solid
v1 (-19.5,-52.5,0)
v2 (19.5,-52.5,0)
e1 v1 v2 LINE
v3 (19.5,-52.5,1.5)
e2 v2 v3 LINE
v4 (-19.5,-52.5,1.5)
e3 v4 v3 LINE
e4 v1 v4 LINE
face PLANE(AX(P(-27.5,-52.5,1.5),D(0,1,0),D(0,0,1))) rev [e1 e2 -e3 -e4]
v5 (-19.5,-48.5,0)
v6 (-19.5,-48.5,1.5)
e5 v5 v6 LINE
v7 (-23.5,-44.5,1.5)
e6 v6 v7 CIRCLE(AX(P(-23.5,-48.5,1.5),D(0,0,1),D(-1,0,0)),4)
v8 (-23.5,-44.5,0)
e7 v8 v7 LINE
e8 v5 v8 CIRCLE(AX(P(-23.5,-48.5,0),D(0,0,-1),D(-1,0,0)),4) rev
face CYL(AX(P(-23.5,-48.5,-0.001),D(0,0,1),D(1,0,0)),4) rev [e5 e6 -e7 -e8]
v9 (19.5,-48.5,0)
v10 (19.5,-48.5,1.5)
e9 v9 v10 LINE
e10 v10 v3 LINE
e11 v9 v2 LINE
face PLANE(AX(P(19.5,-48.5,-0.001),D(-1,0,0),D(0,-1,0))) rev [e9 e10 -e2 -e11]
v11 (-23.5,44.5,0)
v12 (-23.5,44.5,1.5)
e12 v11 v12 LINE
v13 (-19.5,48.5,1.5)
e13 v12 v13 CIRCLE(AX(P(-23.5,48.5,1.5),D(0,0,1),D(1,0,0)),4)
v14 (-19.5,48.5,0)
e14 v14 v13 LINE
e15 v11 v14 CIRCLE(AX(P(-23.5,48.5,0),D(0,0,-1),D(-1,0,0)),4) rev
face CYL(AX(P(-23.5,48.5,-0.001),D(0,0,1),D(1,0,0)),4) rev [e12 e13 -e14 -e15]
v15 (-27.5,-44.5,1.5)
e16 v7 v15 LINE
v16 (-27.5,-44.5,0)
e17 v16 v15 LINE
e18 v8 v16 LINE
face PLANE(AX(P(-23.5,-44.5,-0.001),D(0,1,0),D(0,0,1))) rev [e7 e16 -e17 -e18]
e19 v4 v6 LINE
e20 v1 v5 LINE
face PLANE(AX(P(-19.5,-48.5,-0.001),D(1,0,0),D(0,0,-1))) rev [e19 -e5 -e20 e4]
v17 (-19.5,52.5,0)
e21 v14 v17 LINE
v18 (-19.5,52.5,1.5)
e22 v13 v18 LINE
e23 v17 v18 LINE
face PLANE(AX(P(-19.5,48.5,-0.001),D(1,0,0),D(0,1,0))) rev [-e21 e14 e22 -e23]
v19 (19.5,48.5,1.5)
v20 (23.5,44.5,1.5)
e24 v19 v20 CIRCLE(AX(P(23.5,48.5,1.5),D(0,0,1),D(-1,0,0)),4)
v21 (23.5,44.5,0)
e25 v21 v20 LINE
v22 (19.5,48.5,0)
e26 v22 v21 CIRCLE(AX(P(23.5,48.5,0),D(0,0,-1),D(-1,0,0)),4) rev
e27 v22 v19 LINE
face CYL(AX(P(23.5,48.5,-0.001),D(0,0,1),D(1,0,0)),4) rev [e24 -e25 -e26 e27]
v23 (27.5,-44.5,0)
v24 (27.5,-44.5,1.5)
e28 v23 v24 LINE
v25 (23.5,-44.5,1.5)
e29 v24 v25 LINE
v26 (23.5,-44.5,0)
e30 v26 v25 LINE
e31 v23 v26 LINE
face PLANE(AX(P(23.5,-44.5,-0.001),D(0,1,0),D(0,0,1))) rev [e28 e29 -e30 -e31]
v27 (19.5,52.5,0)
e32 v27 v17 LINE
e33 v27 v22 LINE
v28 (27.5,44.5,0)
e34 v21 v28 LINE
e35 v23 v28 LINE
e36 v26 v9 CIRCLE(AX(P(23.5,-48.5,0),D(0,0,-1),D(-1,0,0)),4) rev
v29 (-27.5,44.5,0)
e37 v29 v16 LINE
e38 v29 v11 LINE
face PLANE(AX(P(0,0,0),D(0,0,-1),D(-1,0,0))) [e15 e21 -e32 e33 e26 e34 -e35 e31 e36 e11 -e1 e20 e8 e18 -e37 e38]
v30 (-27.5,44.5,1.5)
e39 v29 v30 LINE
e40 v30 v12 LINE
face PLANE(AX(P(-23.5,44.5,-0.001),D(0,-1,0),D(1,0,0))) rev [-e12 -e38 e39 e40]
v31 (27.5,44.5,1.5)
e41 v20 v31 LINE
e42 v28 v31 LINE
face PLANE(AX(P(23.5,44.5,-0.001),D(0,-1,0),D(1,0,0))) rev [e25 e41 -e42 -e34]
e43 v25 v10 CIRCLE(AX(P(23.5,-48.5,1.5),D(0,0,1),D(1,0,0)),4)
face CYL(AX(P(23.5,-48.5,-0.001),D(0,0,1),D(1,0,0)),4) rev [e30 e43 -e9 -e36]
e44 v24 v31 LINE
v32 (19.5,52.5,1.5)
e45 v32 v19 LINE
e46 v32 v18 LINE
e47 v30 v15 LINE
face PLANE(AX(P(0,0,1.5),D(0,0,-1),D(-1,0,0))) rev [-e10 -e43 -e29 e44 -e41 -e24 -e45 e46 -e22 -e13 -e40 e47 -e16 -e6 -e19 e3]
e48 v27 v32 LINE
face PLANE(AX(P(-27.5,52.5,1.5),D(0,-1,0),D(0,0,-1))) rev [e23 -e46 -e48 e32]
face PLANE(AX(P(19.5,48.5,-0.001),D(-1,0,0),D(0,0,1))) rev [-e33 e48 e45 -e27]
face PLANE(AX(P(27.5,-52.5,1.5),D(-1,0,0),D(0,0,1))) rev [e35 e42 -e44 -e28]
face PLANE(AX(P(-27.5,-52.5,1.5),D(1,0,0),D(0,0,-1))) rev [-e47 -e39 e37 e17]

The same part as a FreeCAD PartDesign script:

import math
import FreeCAD as App
import Part
import Sketcher
from FreeCAD import Vector
Q = App.Units.Quantity


def add_polygon(sketch, points):
    """Adds a closed chain of lines whose ends are joined by coincident constraints."""
    first, n = sketch.GeometryCount, len(points)
    for a, b in zip(points, points[1:] + points[:1]):
        sketch.addGeometry(Part.LineSegment(App.Vector(*a, 0), App.Vector(*b, 0)), False)
    for i in range(n):
        sketch.addConstraint(Sketcher.Constraint("Coincident", first + i, 2, first + (i + 1) % n, 1))

doc = App.newDocument("Part")
params = doc.addObject("Spreadsheet::Sheet", "Params")
for row, (alias, value) in enumerate([
    ("sketch1_width", "55 mm"),
    ("sketch1_height", "105 mm"),
    ("pad1_length", "1.5 mm"),
    ("sketch2_radius", "4 mm"),
    ("sketch2_width", "4 mm"),
    ("sketch3_radius", "4 mm"),
    ("sketch3_width", "8 mm"),
    ("sketch4_radius", "4 mm"),
    ("sketch4_width", "4 mm"),
    ("sketch5_radius", "4 mm"),
    ("sketch5_width", "8 mm"),
], start=1):
    params.set(f"A{row}", alias)
    params.set(f"B{row}", "=" + value)
    params.setAlias(f"B{row}", alias)

body = doc.addObject("PartDesign::Body", "Body")

sketch1 = body.newObject("Sketcher::SketchObject", "Sketch")
sketch1.AttachmentSupport = (doc.getObject("XY_Plane"), [""])
sketch1.MapMode = "FlatFace"
add_polygon(sketch1, [(-28, 52), (-28, -52), (28, -52), (28, 52)])
sketch1.addConstraint(Sketcher.Constraint("Vertical", 0))
sketch1.addConstraint(Sketcher.Constraint("Horizontal", 1))
sketch1.addConstraint(Sketcher.Constraint("Vertical", 2))
sketch1.addConstraint(Sketcher.Constraint("Horizontal", 3))
sketch1.addConstraint(Sketcher.Constraint("Symmetric", 0, 2, 2, 2, -1, 1))
sketch1.addConstraint(Sketcher.Constraint("DistanceX", 1, 1, 1, 2, Q("55 mm")))
sketch1.addConstraint(Sketcher.Constraint("DistanceY", 0, 2, 0, 1, Q("105 mm")))
sketch1.setExpression("Constraints[9]", "Params.sketch1_width")
sketch1.setExpression("Constraints[10]", "Params.sketch1_height")
pad1 = body.newObject("PartDesign::Pad", "Pad")
pad1.Profile = sketch1
pad1.setExpression("Length", "Params.pad1_length")

sketch2 = body.newObject("Sketcher::SketchObject", "Sketch001")
sketch2.AttachmentSupport = (doc.getObject("XY_Plane"), [""])
sketch2.MapMode = "FlatFace"
sketch2.AttachmentOffset = App.Placement(Vector(0, 0, 1.5), App.Rotation())
sketch2.addGeometry(Part.LineSegment(Vector(-19.5, -52.5, 0), Vector(-19.5, -48.5, 0)), False)
sketch2.addGeometry(Part.ArcOfCircle(Part.Circle(Vector(-23.5, -48.5, 0), Vector(0, 0, 1), 4), math.radians(0), math.radians(90)), False)
sketch2.addGeometry(Part.LineSegment(Vector(-23.5, -44.5, 0), Vector(-27.5, -44.5, 0)), False)
sketch2.addGeometry(Part.LineSegment(Vector(-27.5, -44.5, 0), Vector(-27.5, -52.5, 0)), False)
sketch2.addGeometry(Part.LineSegment(Vector(-27.5, -52.5, 0), Vector(-19.5, -52.5, 0)), False)
sketch2.addConstraint(Sketcher.Constraint("Tangent", 0, 2, 1, 1))
sketch2.addConstraint(Sketcher.Constraint("Tangent", 1, 2, 2, 1))
sketch2.addConstraint(Sketcher.Constraint("Coincident", 2, 2, 3, 1))
sketch2.addConstraint(Sketcher.Constraint("Coincident", 3, 2, 4, 1))
sketch2.addConstraint(Sketcher.Constraint("Coincident", 4, 2, 0, 1))
sketch2.addConstraint(Sketcher.Constraint("Vertical", 0))
sketch2.addConstraint(Sketcher.Constraint("Horizontal", 2))
sketch2.addConstraint(Sketcher.Constraint("Vertical", 3))
sketch2.addConstraint(Sketcher.Constraint("Horizontal", 4))
sketch2.addConstraint(Sketcher.Constraint("Equal", 2, 0))
sketch2.addConstraint(Sketcher.Constraint("Radius", 1, Q("4 mm")))
sketch2.addConstraint(Sketcher.Constraint("DistanceX", 2, 2, 2, 1, Q("4 mm")))
sketch2.addConstraint(Sketcher.Constraint("DistanceX", 1, 3, -1, 1, Q("23.5 mm")))
sketch2.addConstraint(Sketcher.Constraint("DistanceY", 1, 3, -1, 1, Q("48.5 mm")))
sketch2.setExpression("Constraints[10]", "Params.sketch2_radius")
sketch2.setExpression("Constraints[11]", "Params.sketch2_width")
pocket1 = body.newObject("PartDesign::Pocket", "Pocket")
pocket1.Profile = sketch2
pocket1.Type = "UpToFirst"

sketch3 = body.newObject("Sketcher::SketchObject", "Sketch002")
sketch3.AttachmentSupport = (doc.getObject("XY_Plane"), [""])
sketch3.MapMode = "FlatFace"
sketch3.AttachmentOffset = App.Placement(Vector(0, 0, 1.5), App.Rotation())
sketch3.addGeometry(Part.LineSegment(Vector(19.5, -48.5, 0), Vector(19.5, -52.5, 0)), False)
sketch3.addGeometry(Part.LineSegment(Vector(19.5, -52.5, 0), Vector(27.5, -52.5, 0)), False)
sketch3.addGeometry(Part.LineSegment(Vector(27.5, -52.5, 0), Vector(27.5, -44.5, 0)), False)
sketch3.addGeometry(Part.LineSegment(Vector(27.5, -44.5, 0), Vector(23.5, -44.5, 0)), False)
sketch3.addGeometry(Part.ArcOfCircle(Part.Circle(Vector(23.5, -48.5, 0), Vector(0, 0, 1), 4), math.radians(90), math.radians(180)), False)
sketch3.addConstraint(Sketcher.Constraint("Coincident", 0, 2, 1, 1))
sketch3.addConstraint(Sketcher.Constraint("Coincident", 1, 2, 2, 1))
sketch3.addConstraint(Sketcher.Constraint("Coincident", 2, 2, 3, 1))
sketch3.addConstraint(Sketcher.Constraint("Tangent", 3, 2, 4, 1))
sketch3.addConstraint(Sketcher.Constraint("Tangent", 4, 2, 0, 1))
sketch3.addConstraint(Sketcher.Constraint("Vertical", 0))
sketch3.addConstraint(Sketcher.Constraint("Horizontal", 1))
sketch3.addConstraint(Sketcher.Constraint("Vertical", 2))
sketch3.addConstraint(Sketcher.Constraint("Horizontal", 3))
sketch3.addConstraint(Sketcher.Constraint("Equal", 3, 0))
sketch3.addConstraint(Sketcher.Constraint("Radius", 4, Q("4 mm")))
sketch3.addConstraint(Sketcher.Constraint("DistanceX", 1, 1, 1, 2, Q("8 mm")))
sketch3.addConstraint(Sketcher.Constraint("DistanceX", -1, 1, 4, 3, Q("23.5 mm")))
sketch3.addConstraint(Sketcher.Constraint("DistanceY", 4, 3, -1, 1, Q("48.5 mm")))
sketch3.setExpression("Constraints[10]", "Params.sketch3_radius")
sketch3.setExpression("Constraints[11]", "Params.sketch3_width")
pocket2 = body.newObject("PartDesign::Pocket", "Pocket001")
pocket2.Profile = sketch3
pocket2.Type = "UpToFirst"

sketch4 = body.newObject("Sketcher::SketchObject", "Sketch003")
sketch4.AttachmentSupport = (doc.getObject("XY_Plane"), [""])
sketch4.MapMode = "FlatFace"
sketch4.AttachmentOffset = App.Placement(Vector(0, 0, 1.5), App.Rotation())
sketch4.addGeometry(Part.LineSegment(Vector(19.5, 52.5, 0), Vector(19.5, 48.5, 0)), False)
sketch4.addGeometry(Part.ArcOfCircle(Part.Circle(Vector(23.5, 48.5, 0), Vector(0, 0, 1), 4), math.radians(180), math.radians(270)), False)
sketch4.addGeometry(Part.LineSegment(Vector(23.5, 44.5, 0), Vector(27.5, 44.5, 0)), False)
sketch4.addGeometry(Part.LineSegment(Vector(27.5, 44.5, 0), Vector(27.5, 52.5, 0)), False)
sketch4.addGeometry(Part.LineSegment(Vector(27.5, 52.5, 0), Vector(19.5, 52.5, 0)), False)
sketch4.addConstraint(Sketcher.Constraint("Tangent", 0, 2, 1, 1))
sketch4.addConstraint(Sketcher.Constraint("Tangent", 1, 2, 2, 1))
sketch4.addConstraint(Sketcher.Constraint("Coincident", 2, 2, 3, 1))
sketch4.addConstraint(Sketcher.Constraint("Coincident", 3, 2, 4, 1))
sketch4.addConstraint(Sketcher.Constraint("Coincident", 4, 2, 0, 1))
sketch4.addConstraint(Sketcher.Constraint("Vertical", 0))
sketch4.addConstraint(Sketcher.Constraint("Horizontal", 2))
sketch4.addConstraint(Sketcher.Constraint("Vertical", 3))
sketch4.addConstraint(Sketcher.Constraint("Horizontal", 4))
sketch4.addConstraint(Sketcher.Constraint("Equal", 2, 0))
sketch4.addConstraint(Sketcher.Constraint("Radius", 1, Q("4 mm")))
sketch4.addConstraint(Sketcher.Constraint("DistanceX", 2, 1, 2, 2, Q("4 mm")))
sketch4.addConstraint(Sketcher.Constraint("DistanceX", -1, 1, 1, 3, Q("23.5 mm")))
sketch4.addConstraint(Sketcher.Constraint("DistanceY", -1, 1, 1, 3, Q("48.5 mm")))
sketch4.setExpression("Constraints[10]", "Params.sketch4_radius")
sketch4.setExpression("Constraints[11]", "Params.sketch4_width")
pocket3 = body.newObject("PartDesign::Pocket", "Pocket002")
pocket3.Profile = sketch4
pocket3.Type = "UpToFirst"

sketch5 = body.newObject("Sketcher::SketchObject", "Sketch004")
sketch5.AttachmentSupport = (doc.getObject("XY_Plane"), [""])
sketch5.MapMode = "FlatFace"
sketch5.AttachmentOffset = App.Placement(Vector(0, 0, 1.5), App.Rotation())
sketch5.addGeometry(Part.LineSegment(Vector(-19.5, 48.5, 0), Vector(-19.5, 52.5, 0)), False)
sketch5.addGeometry(Part.LineSegment(Vector(-19.5, 52.5, 0), Vector(-27.5, 52.5, 0)), False)
sketch5.addGeometry(Part.LineSegment(Vector(-27.5, 52.5, 0), Vector(-27.5, 44.5, 0)), False)
sketch5.addGeometry(Part.LineSegment(Vector(-27.5, 44.5, 0), Vector(-23.5, 44.5, 0)), False)
sketch5.addGeometry(Part.ArcOfCircle(Part.Circle(Vector(-23.5, 48.5, 0), Vector(0, 0, 1), 4), math.radians(-90), math.radians(0)), False)
sketch5.addConstraint(Sketcher.Constraint("Coincident", 0, 2, 1, 1))
sketch5.addConstraint(Sketcher.Constraint("Coincident", 1, 2, 2, 1))
sketch5.addConstraint(Sketcher.Constraint("Coincident", 2, 2, 3, 1))
sketch5.addConstraint(Sketcher.Constraint("Tangent", 3, 2, 4, 1))
sketch5.addConstraint(Sketcher.Constraint("Tangent", 4, 2, 0, 1))
sketch5.addConstraint(Sketcher.Constraint("Vertical", 0))
sketch5.addConstraint(Sketcher.Constraint("Horizontal", 1))
sketch5.addConstraint(Sketcher.Constraint("Vertical", 2))
sketch5.addConstraint(Sketcher.Constraint("Horizontal", 3))
sketch5.addConstraint(Sketcher.Constraint("Equal", 3, 0))
sketch5.addConstraint(Sketcher.Constraint("Radius", 4, Q("4 mm")))
sketch5.addConstraint(Sketcher.Constraint("DistanceX", 1, 2, 1, 1, Q("8 mm")))
sketch5.addConstraint(Sketcher.Constraint("DistanceX", 4, 3, -1, 1, Q("23.5 mm")))
sketch5.addConstraint(Sketcher.Constraint("DistanceY", -1, 1, 4, 3, Q("48.5 mm")))
sketch5.setExpression("Constraints[10]", "Params.sketch5_radius")
sketch5.setExpression("Constraints[11]", "Params.sketch5_width")
pocket4 = body.newObject("PartDesign::Pocket", "Pocket003")
pocket4.Profile = sketch5
pocket4.Type = "UpToFirst"

doc.recompute()
